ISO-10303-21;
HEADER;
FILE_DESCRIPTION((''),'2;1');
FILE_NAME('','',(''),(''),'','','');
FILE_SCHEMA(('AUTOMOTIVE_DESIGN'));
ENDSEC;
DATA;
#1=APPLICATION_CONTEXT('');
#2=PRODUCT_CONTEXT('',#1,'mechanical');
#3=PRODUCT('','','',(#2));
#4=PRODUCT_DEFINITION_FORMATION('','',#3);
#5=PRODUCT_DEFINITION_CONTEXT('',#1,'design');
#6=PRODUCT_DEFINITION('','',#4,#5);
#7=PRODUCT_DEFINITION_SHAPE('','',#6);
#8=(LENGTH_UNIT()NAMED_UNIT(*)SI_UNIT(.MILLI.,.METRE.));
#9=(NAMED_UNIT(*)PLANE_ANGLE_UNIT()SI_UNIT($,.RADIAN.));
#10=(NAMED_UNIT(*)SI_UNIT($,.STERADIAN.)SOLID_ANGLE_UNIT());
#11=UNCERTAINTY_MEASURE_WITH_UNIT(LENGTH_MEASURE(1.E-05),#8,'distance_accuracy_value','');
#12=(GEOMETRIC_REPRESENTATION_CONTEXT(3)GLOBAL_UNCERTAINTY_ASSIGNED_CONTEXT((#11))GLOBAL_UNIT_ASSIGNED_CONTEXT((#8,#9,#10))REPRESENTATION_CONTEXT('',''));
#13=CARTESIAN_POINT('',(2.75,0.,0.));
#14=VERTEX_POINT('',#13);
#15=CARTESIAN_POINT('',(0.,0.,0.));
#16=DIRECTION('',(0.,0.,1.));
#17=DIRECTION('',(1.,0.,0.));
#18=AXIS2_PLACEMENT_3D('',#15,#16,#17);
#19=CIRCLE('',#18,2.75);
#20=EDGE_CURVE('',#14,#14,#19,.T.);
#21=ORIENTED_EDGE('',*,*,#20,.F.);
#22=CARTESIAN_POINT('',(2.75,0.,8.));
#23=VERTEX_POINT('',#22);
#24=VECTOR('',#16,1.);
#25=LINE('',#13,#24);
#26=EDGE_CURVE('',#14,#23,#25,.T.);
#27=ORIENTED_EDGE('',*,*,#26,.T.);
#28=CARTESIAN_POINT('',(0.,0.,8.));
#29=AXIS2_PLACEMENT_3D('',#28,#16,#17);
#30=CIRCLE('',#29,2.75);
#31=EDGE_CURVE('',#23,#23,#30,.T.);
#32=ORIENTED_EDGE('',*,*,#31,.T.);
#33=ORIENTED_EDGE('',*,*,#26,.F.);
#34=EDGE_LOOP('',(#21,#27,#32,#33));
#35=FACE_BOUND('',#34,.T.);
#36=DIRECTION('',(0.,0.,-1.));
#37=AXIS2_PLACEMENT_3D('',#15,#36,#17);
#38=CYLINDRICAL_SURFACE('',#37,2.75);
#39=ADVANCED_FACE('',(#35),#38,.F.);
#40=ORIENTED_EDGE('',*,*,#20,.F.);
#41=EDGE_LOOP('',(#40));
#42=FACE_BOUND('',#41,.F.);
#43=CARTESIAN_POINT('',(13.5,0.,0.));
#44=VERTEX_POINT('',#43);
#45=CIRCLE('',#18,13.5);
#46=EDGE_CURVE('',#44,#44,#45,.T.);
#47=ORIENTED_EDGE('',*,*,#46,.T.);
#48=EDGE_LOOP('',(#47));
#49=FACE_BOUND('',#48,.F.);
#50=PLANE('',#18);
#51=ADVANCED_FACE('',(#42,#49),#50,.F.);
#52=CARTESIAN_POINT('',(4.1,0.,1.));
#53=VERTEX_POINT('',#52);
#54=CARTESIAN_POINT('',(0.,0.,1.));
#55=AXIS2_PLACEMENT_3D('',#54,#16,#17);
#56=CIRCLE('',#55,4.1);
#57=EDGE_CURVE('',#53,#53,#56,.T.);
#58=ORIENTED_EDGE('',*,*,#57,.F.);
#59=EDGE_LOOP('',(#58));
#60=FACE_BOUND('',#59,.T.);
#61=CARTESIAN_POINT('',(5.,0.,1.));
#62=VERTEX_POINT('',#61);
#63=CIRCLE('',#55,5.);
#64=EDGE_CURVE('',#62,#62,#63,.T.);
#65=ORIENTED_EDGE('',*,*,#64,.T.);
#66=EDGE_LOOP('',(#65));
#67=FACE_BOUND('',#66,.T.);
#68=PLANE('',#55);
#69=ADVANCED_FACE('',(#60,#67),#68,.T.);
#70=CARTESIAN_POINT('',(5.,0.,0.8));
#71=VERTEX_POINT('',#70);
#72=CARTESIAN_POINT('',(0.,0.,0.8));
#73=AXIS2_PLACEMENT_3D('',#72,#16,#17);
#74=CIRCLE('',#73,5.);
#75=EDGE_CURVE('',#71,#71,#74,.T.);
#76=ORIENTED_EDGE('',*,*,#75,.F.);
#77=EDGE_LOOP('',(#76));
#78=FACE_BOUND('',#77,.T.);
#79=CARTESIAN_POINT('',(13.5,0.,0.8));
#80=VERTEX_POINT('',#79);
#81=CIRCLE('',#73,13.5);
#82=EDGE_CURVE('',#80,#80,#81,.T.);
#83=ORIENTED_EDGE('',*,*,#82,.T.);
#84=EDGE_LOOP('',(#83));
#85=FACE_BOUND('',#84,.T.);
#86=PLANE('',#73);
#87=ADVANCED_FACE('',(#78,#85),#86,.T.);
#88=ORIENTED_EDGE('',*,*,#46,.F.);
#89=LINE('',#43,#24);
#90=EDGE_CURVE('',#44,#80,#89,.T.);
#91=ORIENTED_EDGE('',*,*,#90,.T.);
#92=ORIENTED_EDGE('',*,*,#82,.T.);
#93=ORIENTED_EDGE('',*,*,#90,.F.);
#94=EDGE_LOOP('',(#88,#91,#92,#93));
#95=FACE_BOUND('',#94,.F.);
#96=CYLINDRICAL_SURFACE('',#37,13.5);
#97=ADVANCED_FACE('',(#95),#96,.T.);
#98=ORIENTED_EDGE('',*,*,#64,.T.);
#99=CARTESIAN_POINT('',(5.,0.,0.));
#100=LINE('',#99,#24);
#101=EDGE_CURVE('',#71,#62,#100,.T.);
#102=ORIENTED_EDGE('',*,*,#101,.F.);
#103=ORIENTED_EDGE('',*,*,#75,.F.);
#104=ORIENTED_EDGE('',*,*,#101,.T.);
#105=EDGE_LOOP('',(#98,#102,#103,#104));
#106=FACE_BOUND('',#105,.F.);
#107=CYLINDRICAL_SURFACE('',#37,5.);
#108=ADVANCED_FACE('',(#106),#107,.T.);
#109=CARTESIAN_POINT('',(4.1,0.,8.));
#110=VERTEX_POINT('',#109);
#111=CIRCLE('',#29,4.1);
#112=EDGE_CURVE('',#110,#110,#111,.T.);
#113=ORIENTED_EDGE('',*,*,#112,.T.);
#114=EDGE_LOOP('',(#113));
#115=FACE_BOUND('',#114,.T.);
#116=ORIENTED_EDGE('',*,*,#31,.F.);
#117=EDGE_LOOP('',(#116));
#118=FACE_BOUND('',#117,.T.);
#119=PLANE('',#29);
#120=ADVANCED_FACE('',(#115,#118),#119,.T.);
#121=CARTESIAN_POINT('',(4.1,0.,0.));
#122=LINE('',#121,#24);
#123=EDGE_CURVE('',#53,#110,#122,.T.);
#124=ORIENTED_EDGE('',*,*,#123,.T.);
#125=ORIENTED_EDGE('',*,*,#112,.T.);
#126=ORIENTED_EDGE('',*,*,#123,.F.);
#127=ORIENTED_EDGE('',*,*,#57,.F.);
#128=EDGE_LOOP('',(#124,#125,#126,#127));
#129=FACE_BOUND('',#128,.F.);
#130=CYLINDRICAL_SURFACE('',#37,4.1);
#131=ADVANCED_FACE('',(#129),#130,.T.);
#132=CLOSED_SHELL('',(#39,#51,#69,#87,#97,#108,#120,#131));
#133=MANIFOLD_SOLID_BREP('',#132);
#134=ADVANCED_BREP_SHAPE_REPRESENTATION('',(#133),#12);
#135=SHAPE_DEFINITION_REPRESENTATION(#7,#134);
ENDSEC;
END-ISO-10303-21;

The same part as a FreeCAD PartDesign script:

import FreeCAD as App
import Part
import Sketcher
from FreeCAD import Vector
Q = App.Units.Quantity

doc = App.newDocument("Part")
body = doc.addObject("PartDesign::Body", "Body")

# Sketch on XY plane
sketch1 = body.newObject("Sketcher::SketchObject", "Sketch")
sketch1.AttachmentSupport = (doc.getObject("XY_Plane"), [""])
sketch1.MapMode = "FlatFace"
sketch1.addGeometry([
    Part.Circle(Vector(0, 0, 0), Vector(0, 0, 1), 13.5),
    Part.Circle(Vector(0, 0, 0), Vector(0, 0, 1), 5),
], False)
sketch1.addConstraint([
    Sketcher.Constraint("Coincident", 0, 3, -1, 1),
    Sketcher.Constraint("Coincident", 1, 3, -1, 1),
    Sketcher.Constraint("Diameter", 0, Q("27 mm")),
    Sketcher.Constraint("Diameter", 1, Q("10 mm")),
])
pad1 = body.newObject("PartDesign::Pad", "Pad")
pad1.Profile = sketch1
pad1.Length = 0.8
body2 = doc.addObject("PartDesign::Body", "Body001")

# Sketch on XY plane
sketch2 = body2.newObject("Sketcher::SketchObject", "Sketch001")
sketch2.AttachmentSupport = (doc.getObject("XY_Plane001"), [""])
sketch2.MapMode = "FlatFace"
sketch2.addGeometry([
    Part.Circle(Vector(0, 0, 0), Vector(0, 0, 1), 4.1),
    Part.Circle(Vector(0, 0, 0), Vector(0, 0, 1), 2.75),
], False)
sketch2.addConstraint([
    Sketcher.Constraint("Coincident", 0, 3, -1, 1),
    Sketcher.Constraint("Coincident", 1, 3, -1, 1),
    Sketcher.Constraint("Diameter", 0, Q("8.2 mm")),
    Sketcher.Constraint("Diameter", 1, Q("5.5 mm")),
])
pad2 = body2.newObject("PartDesign::Pad", "Pad001")
pad2.Profile = sketch2
pad2.Length = 8
body.AllowCompound = True
doc.recompute()

boolean = body.newObject("PartDesign::Boolean", "Boolean")
boolean.Type = "Fuse"
boolean.addObjects([body2])

# Sketch on XY plane
sketch3 = body.newObject("Sketcher::SketchObject", "Sketch002")
sketch3.AttachmentSupport = (doc.getObject("XY_Plane"), [""])
sketch3.MapMode = "FlatFace"
sketch3.addGeometry([
    Part.Circle(Vector(0, 0, 0), Vector(0, 0, 1), 5),
    Part.Circle(Vector(0, 0, 0), Vector(0, 0, 1), 4.1),
], False)
sketch3.addConstraint([
    Sketcher.Constraint("Coincident", 0, 3, -1, 1),
    Sketcher.Constraint("Coincident", 1, 3, -1, 1),
    Sketcher.Constraint("Diameter", 0, Q("10 mm")),
    Sketcher.Constraint("Diameter", 1, Q("8.2 mm")),
])
pad3 = body.newObject("PartDesign::Pad", "Pad002")
pad3.Profile = sketch3
pad3.Length = 1

doc.recompute()
